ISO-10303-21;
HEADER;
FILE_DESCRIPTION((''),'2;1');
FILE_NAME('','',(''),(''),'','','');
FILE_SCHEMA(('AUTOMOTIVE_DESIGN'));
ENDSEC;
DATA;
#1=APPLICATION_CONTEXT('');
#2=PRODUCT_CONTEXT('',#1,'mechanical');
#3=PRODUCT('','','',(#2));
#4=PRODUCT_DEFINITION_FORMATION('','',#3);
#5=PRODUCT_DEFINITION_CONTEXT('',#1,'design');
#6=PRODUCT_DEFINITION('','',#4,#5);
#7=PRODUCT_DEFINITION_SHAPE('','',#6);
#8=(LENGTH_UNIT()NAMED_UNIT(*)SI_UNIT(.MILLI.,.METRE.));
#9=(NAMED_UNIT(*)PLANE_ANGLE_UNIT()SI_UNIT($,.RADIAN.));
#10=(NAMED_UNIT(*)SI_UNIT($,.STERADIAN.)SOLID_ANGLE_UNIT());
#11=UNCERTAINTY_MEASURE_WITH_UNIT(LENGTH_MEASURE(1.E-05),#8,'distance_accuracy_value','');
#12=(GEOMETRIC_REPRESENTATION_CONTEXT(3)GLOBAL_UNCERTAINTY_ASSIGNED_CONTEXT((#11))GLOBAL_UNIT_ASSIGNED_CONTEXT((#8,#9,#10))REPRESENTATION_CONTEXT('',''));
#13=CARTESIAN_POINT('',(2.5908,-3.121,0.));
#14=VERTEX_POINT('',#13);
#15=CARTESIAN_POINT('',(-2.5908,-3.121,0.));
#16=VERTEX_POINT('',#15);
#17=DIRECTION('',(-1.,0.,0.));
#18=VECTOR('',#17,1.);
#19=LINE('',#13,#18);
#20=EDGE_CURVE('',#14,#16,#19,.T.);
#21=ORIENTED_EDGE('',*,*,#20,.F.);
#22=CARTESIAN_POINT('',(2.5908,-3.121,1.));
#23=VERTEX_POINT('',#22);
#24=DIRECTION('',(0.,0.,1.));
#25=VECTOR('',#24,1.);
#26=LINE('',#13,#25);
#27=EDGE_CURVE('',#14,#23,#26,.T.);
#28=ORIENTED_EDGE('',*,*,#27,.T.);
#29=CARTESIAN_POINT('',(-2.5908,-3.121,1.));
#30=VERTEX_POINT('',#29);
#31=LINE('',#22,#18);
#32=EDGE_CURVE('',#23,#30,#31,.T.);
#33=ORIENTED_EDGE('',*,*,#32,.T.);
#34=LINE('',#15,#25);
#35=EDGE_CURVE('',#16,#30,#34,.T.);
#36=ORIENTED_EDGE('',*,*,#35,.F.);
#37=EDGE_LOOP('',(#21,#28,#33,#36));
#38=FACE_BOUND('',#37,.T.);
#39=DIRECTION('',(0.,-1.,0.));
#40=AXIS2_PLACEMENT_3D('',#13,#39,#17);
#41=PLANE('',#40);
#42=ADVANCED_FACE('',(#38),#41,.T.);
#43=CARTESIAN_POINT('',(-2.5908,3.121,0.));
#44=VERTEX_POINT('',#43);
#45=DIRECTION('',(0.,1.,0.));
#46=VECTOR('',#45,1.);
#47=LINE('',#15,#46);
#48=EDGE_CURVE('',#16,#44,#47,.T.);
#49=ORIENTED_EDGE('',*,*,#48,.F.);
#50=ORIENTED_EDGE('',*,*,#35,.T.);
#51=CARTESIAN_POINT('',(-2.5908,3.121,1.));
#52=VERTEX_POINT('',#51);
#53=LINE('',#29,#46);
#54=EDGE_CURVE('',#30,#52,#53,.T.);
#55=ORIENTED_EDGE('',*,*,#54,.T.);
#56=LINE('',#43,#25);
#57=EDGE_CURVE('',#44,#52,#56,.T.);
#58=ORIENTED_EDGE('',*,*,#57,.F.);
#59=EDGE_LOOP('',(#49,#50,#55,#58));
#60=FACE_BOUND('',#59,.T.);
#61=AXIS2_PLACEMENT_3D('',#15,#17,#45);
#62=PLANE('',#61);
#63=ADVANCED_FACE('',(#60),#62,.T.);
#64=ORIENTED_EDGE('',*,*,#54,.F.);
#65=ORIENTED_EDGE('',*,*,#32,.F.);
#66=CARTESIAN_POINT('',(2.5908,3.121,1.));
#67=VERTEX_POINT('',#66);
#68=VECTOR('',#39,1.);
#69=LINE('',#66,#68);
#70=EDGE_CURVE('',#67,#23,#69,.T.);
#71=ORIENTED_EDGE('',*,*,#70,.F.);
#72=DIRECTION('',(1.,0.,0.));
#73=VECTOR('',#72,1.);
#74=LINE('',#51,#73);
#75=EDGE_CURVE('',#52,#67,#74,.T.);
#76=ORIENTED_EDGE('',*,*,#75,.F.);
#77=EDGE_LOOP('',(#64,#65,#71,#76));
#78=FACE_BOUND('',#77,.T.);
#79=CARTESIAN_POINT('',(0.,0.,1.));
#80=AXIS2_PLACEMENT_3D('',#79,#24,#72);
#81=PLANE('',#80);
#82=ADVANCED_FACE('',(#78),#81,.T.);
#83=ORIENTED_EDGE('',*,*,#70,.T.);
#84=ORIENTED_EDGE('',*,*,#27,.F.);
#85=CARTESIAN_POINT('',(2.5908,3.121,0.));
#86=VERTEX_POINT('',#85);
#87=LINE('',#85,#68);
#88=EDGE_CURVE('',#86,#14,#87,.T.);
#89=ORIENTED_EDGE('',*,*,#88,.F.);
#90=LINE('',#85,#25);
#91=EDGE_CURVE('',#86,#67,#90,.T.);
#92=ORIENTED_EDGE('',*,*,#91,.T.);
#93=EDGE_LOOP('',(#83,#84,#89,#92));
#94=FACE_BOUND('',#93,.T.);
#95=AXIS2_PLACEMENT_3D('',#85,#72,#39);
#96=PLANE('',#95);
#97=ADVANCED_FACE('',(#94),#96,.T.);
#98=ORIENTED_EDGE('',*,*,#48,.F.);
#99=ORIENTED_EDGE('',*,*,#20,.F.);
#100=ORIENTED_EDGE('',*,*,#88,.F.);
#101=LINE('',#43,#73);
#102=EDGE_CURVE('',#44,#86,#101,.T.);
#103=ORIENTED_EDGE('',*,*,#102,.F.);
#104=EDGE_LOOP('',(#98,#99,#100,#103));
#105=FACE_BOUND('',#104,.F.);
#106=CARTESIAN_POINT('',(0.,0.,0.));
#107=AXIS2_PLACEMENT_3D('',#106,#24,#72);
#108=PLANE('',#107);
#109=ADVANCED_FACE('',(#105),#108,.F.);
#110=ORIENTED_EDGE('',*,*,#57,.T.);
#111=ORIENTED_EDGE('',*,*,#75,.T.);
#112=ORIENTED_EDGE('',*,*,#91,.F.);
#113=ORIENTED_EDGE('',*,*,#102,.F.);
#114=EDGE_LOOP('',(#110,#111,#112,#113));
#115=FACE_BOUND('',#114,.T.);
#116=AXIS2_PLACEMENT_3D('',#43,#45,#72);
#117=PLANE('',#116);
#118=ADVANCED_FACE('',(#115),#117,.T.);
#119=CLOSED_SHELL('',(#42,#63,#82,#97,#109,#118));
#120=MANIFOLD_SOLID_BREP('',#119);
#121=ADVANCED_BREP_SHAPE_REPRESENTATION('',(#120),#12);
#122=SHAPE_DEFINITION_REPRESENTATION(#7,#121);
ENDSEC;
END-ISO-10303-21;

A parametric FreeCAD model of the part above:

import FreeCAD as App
import Part
import Sketcher

V = App.Vector

doc = App.newDocument("Part")
body = doc.addObject("PartDesign::Body", "Body")

sketch1 = body.newObject("Sketcher::SketchObject", "Sketch")
sketch1.AttachmentSupport = (doc.getObject("XY_Plane"), [""])
sketch1.MapMode = "FlatFace"
sketch1.addGeometry([
    Part.LineSegment(V(3, 3, 0), V(-3, 3, 0)),
    Part.LineSegment(V(-3, 3, 0), V(-3, -3, 0)),
    Part.LineSegment(V(-3, -3, 0), V(3, -3, 0)),
    Part.LineSegment(V(3, -3, 0), V(3, 3, 0)),
], False)
sketch1.addConstraint([
    Sketcher.Constraint("Coincident", 0, 2, 1, 1),
    Sketcher.Constraint("Coincident", 1, 2, 2, 1),
    Sketcher.Constraint("Coincident", 2, 2, 3, 1),
    Sketcher.Constraint("Coincident", 3, 2, 0, 1),
    Sketcher.Constraint("Horizontal", 0),
    Sketcher.Constraint("Vertical", 1),
    Sketcher.Constraint("Horizontal", 2),
    Sketcher.Constraint("Vertical", 3),
    Sketcher.Constraint("Symmetric", 0, 2, 2, 2, -1, 1),
    Sketcher.Constraint("DistanceY", 1, 2, 1, 1, 6.242),
    Sketcher.Constraint("DistanceX", 0, 2, 0, 1, 5.1816),
])
pad1 = body.newObject("PartDesign::Pad", "Pad")
pad1.Profile = sketch1
pad1.Length = 1

doc.recompute()
